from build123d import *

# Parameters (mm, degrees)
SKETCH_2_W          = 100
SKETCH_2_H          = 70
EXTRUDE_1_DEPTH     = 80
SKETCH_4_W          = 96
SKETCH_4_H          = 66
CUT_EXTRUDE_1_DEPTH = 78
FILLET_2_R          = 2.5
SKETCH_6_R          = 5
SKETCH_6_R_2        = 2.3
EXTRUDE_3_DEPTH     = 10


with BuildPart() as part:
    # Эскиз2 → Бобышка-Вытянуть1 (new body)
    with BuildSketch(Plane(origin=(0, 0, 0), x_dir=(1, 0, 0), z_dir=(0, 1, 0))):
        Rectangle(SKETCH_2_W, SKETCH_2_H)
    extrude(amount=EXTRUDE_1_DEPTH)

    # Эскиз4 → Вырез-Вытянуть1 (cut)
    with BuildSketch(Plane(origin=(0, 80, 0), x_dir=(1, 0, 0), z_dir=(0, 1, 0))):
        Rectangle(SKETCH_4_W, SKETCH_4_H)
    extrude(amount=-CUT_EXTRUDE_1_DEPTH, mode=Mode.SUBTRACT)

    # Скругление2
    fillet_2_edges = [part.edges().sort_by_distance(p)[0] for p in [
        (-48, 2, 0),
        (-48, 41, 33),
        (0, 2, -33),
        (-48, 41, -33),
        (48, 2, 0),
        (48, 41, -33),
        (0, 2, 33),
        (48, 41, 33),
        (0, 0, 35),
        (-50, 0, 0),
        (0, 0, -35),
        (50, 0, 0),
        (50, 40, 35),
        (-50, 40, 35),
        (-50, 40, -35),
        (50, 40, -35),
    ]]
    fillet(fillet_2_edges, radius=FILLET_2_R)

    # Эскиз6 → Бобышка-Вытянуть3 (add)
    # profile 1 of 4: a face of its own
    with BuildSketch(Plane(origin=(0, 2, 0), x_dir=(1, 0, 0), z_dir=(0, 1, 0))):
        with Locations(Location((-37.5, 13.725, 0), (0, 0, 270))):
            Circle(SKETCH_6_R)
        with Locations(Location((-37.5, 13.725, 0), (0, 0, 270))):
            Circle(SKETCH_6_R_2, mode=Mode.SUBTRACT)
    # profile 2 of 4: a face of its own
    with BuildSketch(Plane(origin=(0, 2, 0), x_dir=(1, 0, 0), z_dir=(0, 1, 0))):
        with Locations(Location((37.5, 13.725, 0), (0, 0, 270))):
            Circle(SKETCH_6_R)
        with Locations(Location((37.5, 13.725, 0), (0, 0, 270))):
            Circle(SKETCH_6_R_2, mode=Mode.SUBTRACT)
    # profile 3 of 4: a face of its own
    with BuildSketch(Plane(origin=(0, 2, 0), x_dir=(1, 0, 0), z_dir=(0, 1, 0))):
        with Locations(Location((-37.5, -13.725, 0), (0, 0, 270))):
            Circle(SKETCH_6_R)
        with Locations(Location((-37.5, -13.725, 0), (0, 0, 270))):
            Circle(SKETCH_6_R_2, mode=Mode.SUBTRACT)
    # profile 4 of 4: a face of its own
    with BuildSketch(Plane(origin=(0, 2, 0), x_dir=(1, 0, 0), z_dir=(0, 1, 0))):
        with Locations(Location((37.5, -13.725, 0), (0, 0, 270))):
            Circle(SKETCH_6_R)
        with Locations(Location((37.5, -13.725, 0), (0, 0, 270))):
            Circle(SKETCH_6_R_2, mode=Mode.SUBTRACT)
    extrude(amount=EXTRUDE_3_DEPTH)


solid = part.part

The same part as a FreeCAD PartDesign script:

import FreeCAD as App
import Part
import Sketcher


def edges_at(feature, points):
    """Names of the edges that pass closest to the given points."""
    edges = feature.Shape.Edges
    near = lambda p: min(range(len(edges)), key=lambda i: edges[i].distToShape(Part.Vertex(*p))[0])
    return sorted({f"Edge{near(p) + 1}" for p in points})


def add_polygon(sketch, points):
    """Adds a closed chain of lines whose ends are joined by coincident constraints."""
    first, n = sketch.GeometryCount, len(points)
    for a, b in zip(points, points[1:] + points[:1]):
        sketch.addGeometry(Part.LineSegment(App.Vector(*a, 0), App.Vector(*b, 0)), False)
    for i in range(n):
        sketch.addConstraint(Sketcher.Constraint("Coincident", first + i, 2, first + (i + 1) % n, 1))

doc = App.newDocument("Part")
body = doc.addObject("PartDesign::Body", "Body")

# Sketch on XZ plane
sketch1 = body.newObject("Sketcher::SketchObject", "Sketch")
sketch1.AttachmentSupport = (doc.getObject("XZ_Plane"), [""])
sketch1.MapMode = "FlatFace"
add_polygon(sketch1, [(-50, -35), (-50, 35), (50, 35), (50, -35)])  # lines 0-3
sketch1.addConstraint([
    Sketcher.Constraint("Vertical", 0),
    Sketcher.Constraint("Horizontal", 1),
    Sketcher.Constraint("Vertical", 2),
    Sketcher.Constraint("Horizontal", 3),
    Sketcher.Constraint("Symmetric", 0, 2, 2, 2, -1, 1),
    Sketcher.Constraint("DistanceX", 1, 1, 1, 2, 100.0),
    Sketcher.Constraint("DistanceY", 0, 1, 0, 2, 70.0),
])
pad1 = body.newObject("PartDesign::Pad", "Pad")
pad1.Profile = sketch1
pad1.Length = 80
pad1.Reversed = True

# Sketch on XZ plane
sketch2 = body.newObject("Sketcher::SketchObject", "Sketch001")
sketch2.AttachmentSupport = (doc.getObject("XZ_Plane"), [""])
sketch2.MapMode = "FlatFace"
sketch2.AttachmentOffset = App.Placement(App.Vector(0, 0, -80), App.Rotation())
add_polygon(sketch2, [(-48, -33), (-48, 33), (48, 33), (48, -33)])  # lines 0-3
sketch2.addConstraint([
    Sketcher.Constraint("Vertical", 0),
    Sketcher.Constraint("Horizontal", 1),
    Sketcher.Constraint("Vertical", 2),
    Sketcher.Constraint("Horizontal", 3),
    Sketcher.Constraint("Symmetric", 0, 2, 2, 2, -1, 1),
    Sketcher.Constraint("DistanceX", 1, 1, 1, 2, 96.0),
    Sketcher.Constraint("DistanceY", 0, 1, 0, 2, 66.0),
])
pocket1 = body.newObject("PartDesign::Pocket", "Pocket")
pocket1.Profile = sketch2
pocket1.Length = 78
pocket1.Reversed = True
doc.recompute()

fillet = body.newObject("PartDesign::Fillet", "Fillet")
fillet.Base = (pocket1, edges_at(pocket1, [
    (-48, 2, 0),
    (-48, 41, 33),
    (0, 2, -33),
    (-48, 41, -33),
    (48, 2, 0),
    (48, 41, -33),
    (0, 2, 33),
    (48, 41, 33),
    (0, 0, 35),
    (-50, 0, 0),
    (0, 0, -35),
    (50, 0, 0),
    (50, 40, 35),
    (-50, 40, 35),
    (-50, 40, -35),
    (50, 40, -35),
]))
fillet.Radius = 2.5

# Sketch on XZ plane
sketch3 = body.newObject("Sketcher::SketchObject", "Sketch002")
sketch3.AttachmentSupport = (doc.getObject("XZ_Plane"), [""])
sketch3.MapMode = "FlatFace"
sketch3.AttachmentOffset = App.Placement(App.Vector(0, 0, -2), App.Rotation())
sketch3.addGeometry([
    Part.Circle(App.Vector(-37.5, -13.7, 0), App.Vector(0, 0, 1), 5),  # 0
    Part.Circle(App.Vector(-37.5, -13.7, 0), App.Vector(0, 0, 1), 2.3),  # 1
    Part.Circle(App.Vector(37.5, -13.7, 0), App.Vector(0, 0, 1), 5),  # 2
    Part.Circle(App.Vector(37.5, -13.7, 0), App.Vector(0, 0, 1), 2.3),  # 3
    Part.Circle(App.Vector(-37.5, 13.7, 0), App.Vector(0, 0, 1), 5),  # 4
    Part.Circle(App.Vector(-37.5, 13.7, 0), App.Vector(0, 0, 1), 2.3),  # 5
    Part.Circle(App.Vector(37.5, 13.7, 0), App.Vector(0, 0, 1), 5),  # 6
    Part.Circle(App.Vector(37.5, 13.7, 0), App.Vector(0, 0, 1), 2.3),  # 7
], False)
sketch3.addConstraint([
    Sketcher.Constraint("Coincident", 1, 3, 0, 3),
    Sketcher.Constraint("Coincident", 3, 3, 2, 3),
    Sketcher.Constraint("Coincident", 5, 3, 4, 3),
    Sketcher.Constraint("Coincident", 7, 3, 6, 3),
    Sketcher.Constraint("Equal", 0, 2),
    Sketcher.Constraint("Equal", 1, 3),
    Sketcher.Constraint("Equal", 2, 4),
    Sketcher.Constraint("Equal", 3, 5),
    Sketcher.Constraint("Equal", 4, 6),
    Sketcher.Constraint("Equal", 5, 7),
    Sketcher.Constraint("Symmetric", 2, 3, 4, 3, -1, 1),
    Sketcher.Constraint("Symmetric", 0, 3, 6, 3, -1, 1),
    Sketcher.Constraint("Symmetric", 0, 3, 2, 3, -2),
    Sketcher.Constraint("Diameter", 0, 10.0),
    Sketcher.Constraint("Diameter", 1, 4.6),
    Sketcher.Constraint("DistanceX", 0, 3, 2, 3, 75.0),
    Sketcher.Constraint("DistanceY", 0, 3, 4, 3, 27.45),
])
pad2 = body.newObject("PartDesign::Pad", "Pad001")
pad2.Profile = sketch3
pad2.Length = 10
pad2.Reversed = True

doc.recompute()
